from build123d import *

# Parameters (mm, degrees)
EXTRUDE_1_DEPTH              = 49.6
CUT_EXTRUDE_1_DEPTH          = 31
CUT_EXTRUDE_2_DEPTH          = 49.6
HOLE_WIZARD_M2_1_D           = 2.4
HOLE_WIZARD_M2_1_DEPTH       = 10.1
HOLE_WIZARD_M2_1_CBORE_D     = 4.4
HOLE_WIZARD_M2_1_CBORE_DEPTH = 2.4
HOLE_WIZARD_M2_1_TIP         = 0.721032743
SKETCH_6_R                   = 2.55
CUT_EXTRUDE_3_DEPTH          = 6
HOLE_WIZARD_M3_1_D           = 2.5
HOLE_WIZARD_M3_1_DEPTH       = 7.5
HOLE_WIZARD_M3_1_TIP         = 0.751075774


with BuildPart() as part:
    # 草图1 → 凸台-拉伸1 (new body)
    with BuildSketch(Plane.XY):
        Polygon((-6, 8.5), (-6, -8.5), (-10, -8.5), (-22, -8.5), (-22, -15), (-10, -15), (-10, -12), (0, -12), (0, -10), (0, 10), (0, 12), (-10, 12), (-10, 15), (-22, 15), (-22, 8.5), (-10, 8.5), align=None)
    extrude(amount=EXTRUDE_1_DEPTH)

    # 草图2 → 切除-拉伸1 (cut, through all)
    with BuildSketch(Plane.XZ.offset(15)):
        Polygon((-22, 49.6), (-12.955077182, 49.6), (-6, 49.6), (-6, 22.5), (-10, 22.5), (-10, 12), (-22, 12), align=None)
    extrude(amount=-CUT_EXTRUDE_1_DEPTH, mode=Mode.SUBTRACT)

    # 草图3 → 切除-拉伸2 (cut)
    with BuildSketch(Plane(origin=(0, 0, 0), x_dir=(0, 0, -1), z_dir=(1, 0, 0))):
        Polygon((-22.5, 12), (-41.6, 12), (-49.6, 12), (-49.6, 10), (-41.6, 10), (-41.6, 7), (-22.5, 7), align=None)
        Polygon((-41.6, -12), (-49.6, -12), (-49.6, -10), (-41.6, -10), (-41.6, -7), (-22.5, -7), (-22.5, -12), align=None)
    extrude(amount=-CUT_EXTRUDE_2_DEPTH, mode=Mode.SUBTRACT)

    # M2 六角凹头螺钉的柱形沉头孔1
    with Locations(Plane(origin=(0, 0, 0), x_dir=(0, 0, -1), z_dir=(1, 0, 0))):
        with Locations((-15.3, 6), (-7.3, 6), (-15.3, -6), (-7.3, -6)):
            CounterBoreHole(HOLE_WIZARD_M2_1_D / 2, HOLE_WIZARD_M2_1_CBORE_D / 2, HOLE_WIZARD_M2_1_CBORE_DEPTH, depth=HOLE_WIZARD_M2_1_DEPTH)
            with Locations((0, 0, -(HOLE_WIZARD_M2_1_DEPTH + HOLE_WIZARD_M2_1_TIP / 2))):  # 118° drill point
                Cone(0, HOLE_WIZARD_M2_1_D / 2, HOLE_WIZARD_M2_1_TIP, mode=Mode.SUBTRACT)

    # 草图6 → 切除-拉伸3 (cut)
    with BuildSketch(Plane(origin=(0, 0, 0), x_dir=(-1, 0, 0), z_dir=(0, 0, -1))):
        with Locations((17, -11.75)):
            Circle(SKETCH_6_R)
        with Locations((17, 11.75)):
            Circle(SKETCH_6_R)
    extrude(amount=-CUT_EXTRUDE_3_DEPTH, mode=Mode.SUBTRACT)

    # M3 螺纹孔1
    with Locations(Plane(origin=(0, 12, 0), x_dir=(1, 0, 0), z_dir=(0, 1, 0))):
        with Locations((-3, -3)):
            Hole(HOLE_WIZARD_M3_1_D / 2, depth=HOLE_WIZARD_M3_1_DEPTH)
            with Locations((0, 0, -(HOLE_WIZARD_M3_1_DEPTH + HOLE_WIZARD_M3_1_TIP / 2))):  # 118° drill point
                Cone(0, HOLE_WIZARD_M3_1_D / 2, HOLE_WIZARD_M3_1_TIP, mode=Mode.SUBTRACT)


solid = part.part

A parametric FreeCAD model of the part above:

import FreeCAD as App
import Part
import Sketcher
from FreeCAD import Vector
Q = App.Units.Quantity


def add_polygon(sketch, points):
    """Adds a closed chain of lines whose ends are joined by coincident constraints."""
    first, n = sketch.GeometryCount, len(points)
    for a, b in zip(points, points[1:] + points[:1]):
        sketch.addGeometry(Part.LineSegment(App.Vector(*a, 0), App.Vector(*b, 0)), False)
    for i in range(n):
        sketch.addConstraint(Sketcher.Constraint("Coincident", first + i, 2, first + (i + 1) % n, 1))

doc = App.newDocument("Part")
params = doc.addObject("Spreadsheet::Sheet", "Params")
for row, (alias, value) in enumerate([
    ("sketch1_width", "16 mm"),
    ("sketch1_width2", "12 mm"),
    ("sketch1_width3", "10 mm"),
    ("sketch1_height", "17 mm"),
    ("sketch1_height2", "3 mm"),
    ("pad1_length", "49.6 mm"),
    ("sketch2_width", "16 mm"),
    ("sketch2_width2", "12 mm"),
    ("sketch2_height", "37.6 mm"),
    ("sketch2_height2", "10.5 mm"),
    ("sketch3_width", "2 mm"),
    ("sketch3_width2", "3 mm"),
    ("sketch3_height", "8 mm"),
    ("sketch3_height2", "27.1 mm"),
    ("pocket2_length", "49.6 mm"),
    ("sketch4_diameter", "2.4 mm"),
    ("hole_diameter", "2.4 mm"),
    ("hole_depth", "10.1 mm"),
    ("hole_cbore_diameter", "4.4 mm"),
    ("hole_cbore_depth", "2.4 mm"),
    ("sketch5_diameter", "5.1 mm"),
    ("pocket3_length", "6 mm"),
    ("sketch6_diameter", "2.5 mm"),
    ("hole2_diameter", "2.5 mm"),
    ("hole2_depth", "7.5 mm"),
], start=1):
    params.set(f"A{row}", alias)
    params.set(f"B{row}", "=" + value)
    params.setAlias(f"B{row}", alias)

body = doc.addObject("PartDesign::Body", "Body")

sketch1 = doc.addObject("Sketcher::SketchObject", "Sketch")
body.addObject(sketch1)
sketch1.AttachmentSupport = (doc.XY_Plane, [""])
sketch1.MapMode = "FlatFace"
add_polygon(sketch1, [(-6, 8.5), (-6, -8.5), (-22, -8.5), (-22, -15), (-10, -15), (-10, -12), (0, -12), (0, 12), (-10, 12), (-10, 15), (-22, 15), (-22, 8.5)])
sketch1.addConstraint([
    Sketcher.Constraint("Vertical", 0),
    Sketcher.Constraint("Horizontal", 1),
    Sketcher.Constraint("Vertical", 2),
    Sketcher.Constraint("Horizontal", 3),
    Sketcher.Constraint("Vertical", 4),
    Sketcher.Constraint("Horizontal", 5),
    Sketcher.Constraint("Vertical", 6),
    Sketcher.Constraint("Horizontal", 7),
    Sketcher.Constraint("Vertical", 8),
    Sketcher.Constraint("Horizontal", 9),
    Sketcher.Constraint("Vertical", 10),
    Sketcher.Constraint("Horizontal", 11),
    Sketcher.Constraint("Symmetric", 5, 2, 6, 2, -1, 1),
    Sketcher.Constraint("Symmetric", 3, 2, 8, 2, -1),
    Sketcher.Constraint("Symmetric", 1, 2, 10, 2, -1),
    Sketcher.Constraint("DistanceX", 1, 2, 1, 1, Q("16 mm")),
    Sketcher.Constraint("DistanceX", 3, 1, 3, 2, Q("12 mm")),
    Sketcher.Constraint("DistanceX", 5, 1, 5, 2, Q("10 mm")),
    Sketcher.Constraint("DistanceY", 0, 2, 0, 1, Q("17 mm")),
    Sketcher.Constraint("DistanceY", 4, 1, 4, 2, Q("3 mm")),
    Sketcher.Constraint("DistanceY", 6, 1, 6, 2, Q("24 mm")),
])
sketch1.setExpression("Constraints[27]", "Params.sketch1_width")
sketch1.setExpression("Constraints[28]", "Params.sketch1_width2")
sketch1.setExpression("Constraints[29]", "Params.sketch1_width3")
sketch1.setExpression("Constraints[30]", "Params.sketch1_height")
sketch1.setExpression("Constraints[31]", "Params.sketch1_height2")
pad1 = doc.addObject("PartDesign::Pad", "Pad")
body.addObject(pad1)
pad1.Profile = sketch1
pad1.setExpression("Length", "Params.pad1_length")

sketch2 = doc.addObject("Sketcher::SketchObject", "Sketch001")
body.addObject(sketch2)
sketch2.AttachmentSupport = (doc.XZ_Plane, [""])
sketch2.MapMode = "FlatFace"
sketch2.AttachmentOffset = App.Placement(Vector(0, 0, 15), App.Rotation())
add_polygon(sketch2, [(-6, 49.6), (-22, 49.6), (-22, 12), (-10, 12), (-10, 22.5), (-6, 22.5)])
sketch2.addConstraint([
    Sketcher.Constraint("Horizontal", 0),
    Sketcher.Constraint("Vertical", 1),
    Sketcher.Constraint("Horizontal", 2),
    Sketcher.Constraint("Vertical", 3),
    Sketcher.Constraint("Horizontal", 4),
    Sketcher.Constraint("Vertical", 5),
    Sketcher.Constraint("DistanceX", 0, 2, 0, 1, Q("16 mm")),
    Sketcher.Constraint("DistanceX", 2, 1, 2, 2, Q("12 mm")),
    Sketcher.Constraint("DistanceY", 1, 2, 1, 1, Q("37.6 mm")),
    Sketcher.Constraint("DistanceY", 3, 1, 3, 2, Q("10.5 mm")),
    Sketcher.Constraint("DistanceX", 0, 2, -1, 1, Q("22 mm")),
    Sketcher.Constraint("DistanceY", -1, 1, 1, 2, Q("12 mm")),
])
sketch2.setExpression("Constraints[12]", "Params.sketch2_width")
sketch2.setExpression("Constraints[13]", "Params.sketch2_width2")
sketch2.setExpression("Constraints[14]", "Params.sketch2_height")
sketch2.setExpression("Constraints[15]", "Params.sketch2_height2")
pocket1 = doc.addObject("PartDesign::Pocket", "Pocket")
body.addObject(pocket1)
pocket1.Profile = sketch2
pocket1.Type = "ThroughAll"

sketch3 = doc.addObject("Sketcher::SketchObject", "Sketch002")
body.addObject(sketch3)
sketch3.AttachmentSupport = (doc.YZ_Plane, [""])
sketch3.MapMode = "FlatFace"
add_polygon(sketch3, [(12, 22.5), (12, 49.6), (10, 49.6), (10, 41.6), (7, 41.6), (7, 22.5)])
add_polygon(sketch3, [(-12, 49.6), (-12, 22.5), (-7, 22.5), (-7, 41.6), (-10, 41.6), (-10, 49.6)])
sketch3.addConstraint([
    Sketcher.Constraint("Vertical", 0),
    Sketcher.Constraint("Horizontal", 1),
    Sketcher.Constraint("Vertical", 2),
    Sketcher.Constraint("Horizontal", 3),
    Sketcher.Constraint("Vertical", 4),
    Sketcher.Constraint("Horizontal", 5),
    Sketcher.Constraint("Vertical", 6),
    Sketcher.Constraint("Horizontal", 7),
    Sketcher.Constraint("Vertical", 8),
    Sketcher.Constraint("Horizontal", 9),
    Sketcher.Constraint("Vertical", 10),
    Sketcher.Constraint("Horizontal", 11),
    Sketcher.Constraint("Symmetric", 5, 2, 6, 2, -2),
    Sketcher.Constraint("Symmetric", 3, 2, 8, 2, -2),
    Sketcher.Constraint("Symmetric", 1, 2, 10, 2, -2),
    Sketcher.Constraint("DistanceX", 1, 2, 1, 1, Q("2 mm")),
    Sketcher.Constraint("DistanceX", 3, 2, 3, 1, Q("3 mm")),
    Sketcher.Constraint("DistanceY", 2, 2, 2, 1, Q("8 mm")),
    Sketcher.Constraint("DistanceY", 0, 1, 0, 2, Q("27.1 mm")),
    Sketcher.Constraint("DistanceX", -1, 1, 0, 2, Q("12 mm")),
    Sketcher.Constraint("DistanceY", -1, 1, 0, 2, Q("49.6 mm")),
])
sketch3.setExpression("Constraints[27]", "Params.sketch3_width")
sketch3.setExpression("Constraints[28]", "Params.sketch3_width2")
sketch3.setExpression("Constraints[29]", "Params.sketch3_height")
sketch3.setExpression("Constraints[30]", "Params.sketch3_height2")
pocket2 = doc.addObject("PartDesign::Pocket", "Pocket001")
body.addObject(pocket2)
pocket2.Profile = sketch3
pocket2.setExpression("Length", "Params.pocket2_length")

sketch4 = doc.addObject("Sketcher::SketchObject", "Sketch003")
body.addObject(sketch4)
sketch4.AttachmentSupport = (doc.YZ_Plane, [""])
sketch4.MapMode = "FlatFace"
sketch4.addGeometry([
    Part.Circle(Vector(6, 15.3, 0), Vector(0, 0, 1), 1.2),
    Part.Circle(Vector(6, 7.3, 0), Vector(0, 0, 1), 1.2),
    Part.Circle(Vector(-6, 15.3, 0), Vector(0, 0, 1), 1.2),
    Part.Circle(Vector(-6, 7.3, 0), Vector(0, 0, 1), 1.2),
], False)
sketch4.addConstraint([
    Sketcher.Constraint("Equal", 0, 1),
    Sketcher.Constraint("Equal", 1, 2),
    Sketcher.Constraint("Equal", 2, 3),
    Sketcher.Constraint("Symmetric", 0, 3, 2, 3, -2),
    Sketcher.Constraint("Symmetric", 1, 3, 3, 3, -2),
    Sketcher.Constraint("Vertical", 0, 3, 1, 3),
    Sketcher.Constraint("Diameter", 0, Q("2.4 mm")),
    Sketcher.Constraint("DistanceX", -1, 1, 0, 3, Q("6 mm")),
    Sketcher.Constraint("DistanceY", 1, 3, 0, 3, Q("8 mm")),
    Sketcher.Constraint("DistanceY", -1, 1, 0, 3, Q("15.3 mm")),
])
sketch4.setExpression("Constraints[6]", "Params.sketch4_diameter")
doc.recompute()
hole = doc.addObject("PartDesign::Hole", "Hole")
body.addObject(hole)
hole.Profile = sketch4
hole.ThreadType = "None"
hole.setExpression("Diameter", "Params.hole_diameter")
hole.DepthType = "Dimension"
hole.setExpression("Depth", "Params.hole_depth")
hole.DrillPoint = "Angled"
hole.DrillPointAngle = 118
hole.HoleCutType = "Counterbore"
hole.setExpression("HoleCutDiameter", "Params.hole_cbore_diameter")
hole.setExpression("HoleCutDepth", "Params.hole_cbore_depth")

sketch5 = doc.addObject("Sketcher::SketchObject", "Sketch004")
body.addObject(sketch5)
sketch5.AttachmentSupport = (doc.XY_Plane, [""])
sketch5.MapMode = "FlatFace"
sketch5.addGeometry([
    Part.Circle(Vector(-17, -11.75, 0), Vector(0, 0, 1), 2.55),
    Part.Circle(Vector(-17, 11.75, 0), Vector(0, 0, 1), 2.55),
], False)
sketch5.addConstraint([
    Sketcher.Constraint("Equal", 0, 1),
    Sketcher.Constraint("Symmetric", 0, 3, 1, 3, -1),
    Sketcher.Constraint("Diameter", 0, Q("5.1 mm")),
    Sketcher.Constraint("DistanceX", 0, 3, -1, 1, Q("17 mm")),
    Sketcher.Constraint("DistanceY", 0, 3, 1, 3, Q("23.5 mm")),
])
sketch5.setExpression("Constraints[2]", "Params.sketch5_diameter")
pocket3 = doc.addObject("PartDesign::Pocket", "Pocket002")
body.addObject(pocket3)
pocket3.Profile = sketch5
pocket3.setExpression("Length", "Params.pocket3_length")
pocket3.Reversed = True

sketch6 = doc.addObject("Sketcher::SketchObject", "Sketch005")
body.addObject(sketch6)
sketch6.AttachmentSupport = (doc.XZ_Plane, [""])
sketch6.MapMode = "FlatFace"
sketch6.AttachmentOffset = App.Placement(Vector(0, 0, -12), App.Rotation())
sketch6.addGeometry(Part.Circle(Vector(-3, 3, 0), Vector(0, 0, 1), 1.25), False)
sketch6.addConstraint([
    Sketcher.Constraint("Diameter", 0, Q("2.5 mm")),
    Sketcher.Constraint("DistanceX", 0, 3, -1, 1, Q("3 mm")),
    Sketcher.Constraint("DistanceY", -1, 1, 0, 3, Q("3 mm")),
])
sketch6.setExpression("Constraints[0]", "Params.sketch6_diameter")
doc.recompute()
hole2 = doc.addObject("PartDesign::Hole", "Hole001")
body.addObject(hole2)
hole2.Profile = sketch6
hole2.ThreadType = "None"
hole2.setExpression("Diameter", "Params.hole2_diameter")
hole2.DepthType = "Dimension"
hole2.setExpression("Depth", "Params.hole2_depth")
hole2.DrillPoint = "Angled"
hole2.DrillPointAngle = 118
hole2.Reversed = True

doc.recompute()
